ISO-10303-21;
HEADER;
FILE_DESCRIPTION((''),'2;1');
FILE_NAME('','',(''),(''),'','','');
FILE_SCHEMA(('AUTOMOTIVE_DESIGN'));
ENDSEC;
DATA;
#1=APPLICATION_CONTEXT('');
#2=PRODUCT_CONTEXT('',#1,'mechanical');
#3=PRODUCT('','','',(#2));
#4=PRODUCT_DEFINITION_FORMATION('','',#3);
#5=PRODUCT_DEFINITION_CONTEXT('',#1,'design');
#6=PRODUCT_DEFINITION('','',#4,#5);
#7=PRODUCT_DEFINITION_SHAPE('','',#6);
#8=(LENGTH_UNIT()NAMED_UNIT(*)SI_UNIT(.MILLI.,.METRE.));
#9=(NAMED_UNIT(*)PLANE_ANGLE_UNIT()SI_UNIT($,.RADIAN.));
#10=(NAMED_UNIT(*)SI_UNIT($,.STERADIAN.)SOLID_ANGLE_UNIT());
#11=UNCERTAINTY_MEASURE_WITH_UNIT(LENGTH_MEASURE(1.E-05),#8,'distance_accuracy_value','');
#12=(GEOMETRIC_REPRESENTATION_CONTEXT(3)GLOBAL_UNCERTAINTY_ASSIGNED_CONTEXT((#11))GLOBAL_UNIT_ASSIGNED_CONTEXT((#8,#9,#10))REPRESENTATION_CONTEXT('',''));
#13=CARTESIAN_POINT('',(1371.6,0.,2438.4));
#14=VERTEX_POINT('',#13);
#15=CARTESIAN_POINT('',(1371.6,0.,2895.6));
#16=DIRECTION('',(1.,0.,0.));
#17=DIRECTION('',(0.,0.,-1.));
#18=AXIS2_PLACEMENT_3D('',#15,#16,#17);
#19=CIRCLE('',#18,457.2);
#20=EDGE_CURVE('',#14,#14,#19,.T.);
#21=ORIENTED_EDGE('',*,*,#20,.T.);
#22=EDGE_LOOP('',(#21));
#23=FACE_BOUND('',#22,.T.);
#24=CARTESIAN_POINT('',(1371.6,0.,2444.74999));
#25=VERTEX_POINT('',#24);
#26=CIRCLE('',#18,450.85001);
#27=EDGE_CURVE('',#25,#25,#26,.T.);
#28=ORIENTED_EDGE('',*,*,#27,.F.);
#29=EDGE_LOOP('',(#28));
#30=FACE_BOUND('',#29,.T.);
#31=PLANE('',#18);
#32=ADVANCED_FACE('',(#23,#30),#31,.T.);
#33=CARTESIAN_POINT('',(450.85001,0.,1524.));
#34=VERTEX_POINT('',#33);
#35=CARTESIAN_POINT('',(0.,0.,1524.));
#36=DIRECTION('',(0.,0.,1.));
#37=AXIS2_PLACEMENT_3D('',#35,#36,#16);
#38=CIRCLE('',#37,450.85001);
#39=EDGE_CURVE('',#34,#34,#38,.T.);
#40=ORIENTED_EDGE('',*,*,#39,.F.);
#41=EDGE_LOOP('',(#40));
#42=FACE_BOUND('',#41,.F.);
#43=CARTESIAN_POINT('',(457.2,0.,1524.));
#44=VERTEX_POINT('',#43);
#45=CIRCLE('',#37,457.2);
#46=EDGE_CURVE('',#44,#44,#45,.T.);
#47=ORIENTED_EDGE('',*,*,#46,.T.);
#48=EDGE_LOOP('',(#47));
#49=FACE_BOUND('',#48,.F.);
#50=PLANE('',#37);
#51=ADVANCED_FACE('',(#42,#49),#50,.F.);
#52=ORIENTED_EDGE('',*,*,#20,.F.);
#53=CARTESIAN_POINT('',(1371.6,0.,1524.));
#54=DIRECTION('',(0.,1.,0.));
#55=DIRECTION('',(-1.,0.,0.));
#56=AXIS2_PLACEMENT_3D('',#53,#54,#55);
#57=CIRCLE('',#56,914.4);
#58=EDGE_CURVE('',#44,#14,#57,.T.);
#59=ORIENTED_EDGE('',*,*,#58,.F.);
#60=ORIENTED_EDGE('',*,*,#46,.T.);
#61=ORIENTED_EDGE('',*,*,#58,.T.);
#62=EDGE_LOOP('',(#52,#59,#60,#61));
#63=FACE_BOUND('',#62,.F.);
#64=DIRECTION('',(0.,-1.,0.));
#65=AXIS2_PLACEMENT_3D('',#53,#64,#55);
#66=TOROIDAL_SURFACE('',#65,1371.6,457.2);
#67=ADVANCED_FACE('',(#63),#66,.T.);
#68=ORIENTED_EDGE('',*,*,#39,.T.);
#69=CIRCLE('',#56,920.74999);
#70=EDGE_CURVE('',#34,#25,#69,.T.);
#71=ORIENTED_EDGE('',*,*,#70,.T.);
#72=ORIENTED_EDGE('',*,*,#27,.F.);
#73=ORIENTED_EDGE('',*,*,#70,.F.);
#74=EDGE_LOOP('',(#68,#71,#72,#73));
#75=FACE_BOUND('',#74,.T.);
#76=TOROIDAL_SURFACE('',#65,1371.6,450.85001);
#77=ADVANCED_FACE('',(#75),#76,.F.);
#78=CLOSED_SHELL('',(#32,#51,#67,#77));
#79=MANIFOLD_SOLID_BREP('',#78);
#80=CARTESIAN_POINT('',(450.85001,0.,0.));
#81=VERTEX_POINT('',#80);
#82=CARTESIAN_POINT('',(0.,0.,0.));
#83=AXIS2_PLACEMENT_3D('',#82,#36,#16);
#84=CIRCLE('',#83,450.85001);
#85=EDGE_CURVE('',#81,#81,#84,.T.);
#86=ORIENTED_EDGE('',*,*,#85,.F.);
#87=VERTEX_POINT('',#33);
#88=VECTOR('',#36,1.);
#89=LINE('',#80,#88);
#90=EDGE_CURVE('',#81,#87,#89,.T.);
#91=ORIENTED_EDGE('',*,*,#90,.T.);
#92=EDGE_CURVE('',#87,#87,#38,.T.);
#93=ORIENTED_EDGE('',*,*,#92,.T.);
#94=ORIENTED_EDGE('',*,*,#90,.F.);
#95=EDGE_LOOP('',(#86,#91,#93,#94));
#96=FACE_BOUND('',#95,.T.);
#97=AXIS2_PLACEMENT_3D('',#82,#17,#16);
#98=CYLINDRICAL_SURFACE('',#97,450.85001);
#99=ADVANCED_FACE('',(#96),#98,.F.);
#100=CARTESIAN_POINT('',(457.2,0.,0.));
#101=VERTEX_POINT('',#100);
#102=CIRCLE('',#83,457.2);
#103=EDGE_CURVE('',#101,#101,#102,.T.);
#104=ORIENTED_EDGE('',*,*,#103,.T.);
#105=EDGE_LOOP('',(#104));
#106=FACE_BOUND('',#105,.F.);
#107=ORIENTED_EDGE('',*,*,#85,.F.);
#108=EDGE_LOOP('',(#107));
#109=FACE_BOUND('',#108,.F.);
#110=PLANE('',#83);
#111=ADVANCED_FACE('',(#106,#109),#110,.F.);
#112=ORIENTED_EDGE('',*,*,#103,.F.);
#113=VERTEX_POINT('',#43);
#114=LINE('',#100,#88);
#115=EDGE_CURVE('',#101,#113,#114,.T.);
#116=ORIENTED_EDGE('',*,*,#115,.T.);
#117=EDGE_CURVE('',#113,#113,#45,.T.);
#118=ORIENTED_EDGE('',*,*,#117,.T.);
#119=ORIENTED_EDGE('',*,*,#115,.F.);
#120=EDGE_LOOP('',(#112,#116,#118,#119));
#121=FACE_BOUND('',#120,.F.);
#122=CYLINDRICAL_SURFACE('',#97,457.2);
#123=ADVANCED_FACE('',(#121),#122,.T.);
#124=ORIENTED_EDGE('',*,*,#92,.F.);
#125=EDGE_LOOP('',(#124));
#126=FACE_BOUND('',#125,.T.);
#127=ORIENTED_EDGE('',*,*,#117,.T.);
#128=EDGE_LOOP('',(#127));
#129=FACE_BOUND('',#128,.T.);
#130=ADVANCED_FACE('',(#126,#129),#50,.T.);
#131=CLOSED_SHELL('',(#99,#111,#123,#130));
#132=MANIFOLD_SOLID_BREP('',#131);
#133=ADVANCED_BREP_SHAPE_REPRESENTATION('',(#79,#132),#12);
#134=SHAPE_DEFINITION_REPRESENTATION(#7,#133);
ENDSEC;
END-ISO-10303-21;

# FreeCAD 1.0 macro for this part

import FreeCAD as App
import Part
import Sketcher
from FreeCAD import Vector
Q = App.Units.Quantity

doc = App.newDocument("Part")
body = doc.addObject("PartDesign::Body", "Body")

# Sketch on XY plane
sketch1 = body.newObject("Sketcher::SketchObject", "Sketch")
sketch1.AttachmentSupport = (doc.getObject("XY_Plane"), [""])
sketch1.MapMode = "FlatFace"
sketch1.addGeometry(Part.Circle(Vector(0, 0, 0), Vector(0, 0, 1), 457.2), False)
sketch1.addGeometry(Part.Circle(Vector(0, 0, 0), Vector(0, 0, 1), 450.85001), False)
sketch1.addConstraint(Sketcher.Constraint("Coincident", 0, 3, -1, 1))
sketch1.addConstraint(Sketcher.Constraint("Coincident", 1, 3, -1, 1))
sketch1.addConstraint(Sketcher.Constraint("Diameter", 0, Q("36 in")))
sketch1.addConstraint(Sketcher.Constraint("Diameter", 1, Q("901.70002 mm")))
pad1 = body.newObject("PartDesign::Pad", "Pad")
pad1.Profile = sketch1
pad1.Length = Q("60 in")
body2 = doc.addObject("PartDesign::Body", "Body001")

# Sketch on XY plane
sketch2 = body2.newObject("Sketcher::SketchObject", "Sketch001")
sketch2.AttachmentSupport = (doc.getObject("XY_Plane001"), [""])
sketch2.MapMode = "FlatFace"
sketch2.AttachmentOffset = App.Placement(Vector(0, 0, 60 * 25.4), App.Rotation())
sketch2.addGeometry(Part.Circle(Vector(0, 0, 0), Vector(0, 0, 1), 457.2), False)
sketch2.addGeometry(Part.Circle(Vector(0, 0, 0), Vector(0, 0, 1), 450.85001), False)
sketch2.addGeometry(Part.LineSegment(Vector(1371.6, 0, 0), Vector(1371.6, 10, 0)), True)  # axis
sketch2.addConstraint(Sketcher.Constraint("Vertical", 2))
sketch2.addConstraint(Sketcher.Constraint("Coincident", 0, 3, -1, 1))
sketch2.addConstraint(Sketcher.Constraint("Coincident", 1, 3, -1, 1))
sketch2.addConstraint(Sketcher.Constraint("PointOnObject", 2, 1, -1))
sketch2.addConstraint(Sketcher.Constraint("Diameter", 0, Q("36 in")))
sketch2.addConstraint(Sketcher.Constraint("DistanceX", -1, 1, 2, 1, Q("54 in")))
sketch2.addConstraint(Sketcher.Constraint("Diameter", 1, Q("901.70002 mm")))
sketch2.addConstraint(Sketcher.Constraint("DistanceY", 2, 1, 2, 2, Q("10 mm")))
revolution = body2.newObject("PartDesign::Revolution", "Revolution")
revolution.Profile = sketch2
revolution.ReferenceAxis = (sketch2, ["Axis0"])
revolution.Angle = 90

doc.recompute()
